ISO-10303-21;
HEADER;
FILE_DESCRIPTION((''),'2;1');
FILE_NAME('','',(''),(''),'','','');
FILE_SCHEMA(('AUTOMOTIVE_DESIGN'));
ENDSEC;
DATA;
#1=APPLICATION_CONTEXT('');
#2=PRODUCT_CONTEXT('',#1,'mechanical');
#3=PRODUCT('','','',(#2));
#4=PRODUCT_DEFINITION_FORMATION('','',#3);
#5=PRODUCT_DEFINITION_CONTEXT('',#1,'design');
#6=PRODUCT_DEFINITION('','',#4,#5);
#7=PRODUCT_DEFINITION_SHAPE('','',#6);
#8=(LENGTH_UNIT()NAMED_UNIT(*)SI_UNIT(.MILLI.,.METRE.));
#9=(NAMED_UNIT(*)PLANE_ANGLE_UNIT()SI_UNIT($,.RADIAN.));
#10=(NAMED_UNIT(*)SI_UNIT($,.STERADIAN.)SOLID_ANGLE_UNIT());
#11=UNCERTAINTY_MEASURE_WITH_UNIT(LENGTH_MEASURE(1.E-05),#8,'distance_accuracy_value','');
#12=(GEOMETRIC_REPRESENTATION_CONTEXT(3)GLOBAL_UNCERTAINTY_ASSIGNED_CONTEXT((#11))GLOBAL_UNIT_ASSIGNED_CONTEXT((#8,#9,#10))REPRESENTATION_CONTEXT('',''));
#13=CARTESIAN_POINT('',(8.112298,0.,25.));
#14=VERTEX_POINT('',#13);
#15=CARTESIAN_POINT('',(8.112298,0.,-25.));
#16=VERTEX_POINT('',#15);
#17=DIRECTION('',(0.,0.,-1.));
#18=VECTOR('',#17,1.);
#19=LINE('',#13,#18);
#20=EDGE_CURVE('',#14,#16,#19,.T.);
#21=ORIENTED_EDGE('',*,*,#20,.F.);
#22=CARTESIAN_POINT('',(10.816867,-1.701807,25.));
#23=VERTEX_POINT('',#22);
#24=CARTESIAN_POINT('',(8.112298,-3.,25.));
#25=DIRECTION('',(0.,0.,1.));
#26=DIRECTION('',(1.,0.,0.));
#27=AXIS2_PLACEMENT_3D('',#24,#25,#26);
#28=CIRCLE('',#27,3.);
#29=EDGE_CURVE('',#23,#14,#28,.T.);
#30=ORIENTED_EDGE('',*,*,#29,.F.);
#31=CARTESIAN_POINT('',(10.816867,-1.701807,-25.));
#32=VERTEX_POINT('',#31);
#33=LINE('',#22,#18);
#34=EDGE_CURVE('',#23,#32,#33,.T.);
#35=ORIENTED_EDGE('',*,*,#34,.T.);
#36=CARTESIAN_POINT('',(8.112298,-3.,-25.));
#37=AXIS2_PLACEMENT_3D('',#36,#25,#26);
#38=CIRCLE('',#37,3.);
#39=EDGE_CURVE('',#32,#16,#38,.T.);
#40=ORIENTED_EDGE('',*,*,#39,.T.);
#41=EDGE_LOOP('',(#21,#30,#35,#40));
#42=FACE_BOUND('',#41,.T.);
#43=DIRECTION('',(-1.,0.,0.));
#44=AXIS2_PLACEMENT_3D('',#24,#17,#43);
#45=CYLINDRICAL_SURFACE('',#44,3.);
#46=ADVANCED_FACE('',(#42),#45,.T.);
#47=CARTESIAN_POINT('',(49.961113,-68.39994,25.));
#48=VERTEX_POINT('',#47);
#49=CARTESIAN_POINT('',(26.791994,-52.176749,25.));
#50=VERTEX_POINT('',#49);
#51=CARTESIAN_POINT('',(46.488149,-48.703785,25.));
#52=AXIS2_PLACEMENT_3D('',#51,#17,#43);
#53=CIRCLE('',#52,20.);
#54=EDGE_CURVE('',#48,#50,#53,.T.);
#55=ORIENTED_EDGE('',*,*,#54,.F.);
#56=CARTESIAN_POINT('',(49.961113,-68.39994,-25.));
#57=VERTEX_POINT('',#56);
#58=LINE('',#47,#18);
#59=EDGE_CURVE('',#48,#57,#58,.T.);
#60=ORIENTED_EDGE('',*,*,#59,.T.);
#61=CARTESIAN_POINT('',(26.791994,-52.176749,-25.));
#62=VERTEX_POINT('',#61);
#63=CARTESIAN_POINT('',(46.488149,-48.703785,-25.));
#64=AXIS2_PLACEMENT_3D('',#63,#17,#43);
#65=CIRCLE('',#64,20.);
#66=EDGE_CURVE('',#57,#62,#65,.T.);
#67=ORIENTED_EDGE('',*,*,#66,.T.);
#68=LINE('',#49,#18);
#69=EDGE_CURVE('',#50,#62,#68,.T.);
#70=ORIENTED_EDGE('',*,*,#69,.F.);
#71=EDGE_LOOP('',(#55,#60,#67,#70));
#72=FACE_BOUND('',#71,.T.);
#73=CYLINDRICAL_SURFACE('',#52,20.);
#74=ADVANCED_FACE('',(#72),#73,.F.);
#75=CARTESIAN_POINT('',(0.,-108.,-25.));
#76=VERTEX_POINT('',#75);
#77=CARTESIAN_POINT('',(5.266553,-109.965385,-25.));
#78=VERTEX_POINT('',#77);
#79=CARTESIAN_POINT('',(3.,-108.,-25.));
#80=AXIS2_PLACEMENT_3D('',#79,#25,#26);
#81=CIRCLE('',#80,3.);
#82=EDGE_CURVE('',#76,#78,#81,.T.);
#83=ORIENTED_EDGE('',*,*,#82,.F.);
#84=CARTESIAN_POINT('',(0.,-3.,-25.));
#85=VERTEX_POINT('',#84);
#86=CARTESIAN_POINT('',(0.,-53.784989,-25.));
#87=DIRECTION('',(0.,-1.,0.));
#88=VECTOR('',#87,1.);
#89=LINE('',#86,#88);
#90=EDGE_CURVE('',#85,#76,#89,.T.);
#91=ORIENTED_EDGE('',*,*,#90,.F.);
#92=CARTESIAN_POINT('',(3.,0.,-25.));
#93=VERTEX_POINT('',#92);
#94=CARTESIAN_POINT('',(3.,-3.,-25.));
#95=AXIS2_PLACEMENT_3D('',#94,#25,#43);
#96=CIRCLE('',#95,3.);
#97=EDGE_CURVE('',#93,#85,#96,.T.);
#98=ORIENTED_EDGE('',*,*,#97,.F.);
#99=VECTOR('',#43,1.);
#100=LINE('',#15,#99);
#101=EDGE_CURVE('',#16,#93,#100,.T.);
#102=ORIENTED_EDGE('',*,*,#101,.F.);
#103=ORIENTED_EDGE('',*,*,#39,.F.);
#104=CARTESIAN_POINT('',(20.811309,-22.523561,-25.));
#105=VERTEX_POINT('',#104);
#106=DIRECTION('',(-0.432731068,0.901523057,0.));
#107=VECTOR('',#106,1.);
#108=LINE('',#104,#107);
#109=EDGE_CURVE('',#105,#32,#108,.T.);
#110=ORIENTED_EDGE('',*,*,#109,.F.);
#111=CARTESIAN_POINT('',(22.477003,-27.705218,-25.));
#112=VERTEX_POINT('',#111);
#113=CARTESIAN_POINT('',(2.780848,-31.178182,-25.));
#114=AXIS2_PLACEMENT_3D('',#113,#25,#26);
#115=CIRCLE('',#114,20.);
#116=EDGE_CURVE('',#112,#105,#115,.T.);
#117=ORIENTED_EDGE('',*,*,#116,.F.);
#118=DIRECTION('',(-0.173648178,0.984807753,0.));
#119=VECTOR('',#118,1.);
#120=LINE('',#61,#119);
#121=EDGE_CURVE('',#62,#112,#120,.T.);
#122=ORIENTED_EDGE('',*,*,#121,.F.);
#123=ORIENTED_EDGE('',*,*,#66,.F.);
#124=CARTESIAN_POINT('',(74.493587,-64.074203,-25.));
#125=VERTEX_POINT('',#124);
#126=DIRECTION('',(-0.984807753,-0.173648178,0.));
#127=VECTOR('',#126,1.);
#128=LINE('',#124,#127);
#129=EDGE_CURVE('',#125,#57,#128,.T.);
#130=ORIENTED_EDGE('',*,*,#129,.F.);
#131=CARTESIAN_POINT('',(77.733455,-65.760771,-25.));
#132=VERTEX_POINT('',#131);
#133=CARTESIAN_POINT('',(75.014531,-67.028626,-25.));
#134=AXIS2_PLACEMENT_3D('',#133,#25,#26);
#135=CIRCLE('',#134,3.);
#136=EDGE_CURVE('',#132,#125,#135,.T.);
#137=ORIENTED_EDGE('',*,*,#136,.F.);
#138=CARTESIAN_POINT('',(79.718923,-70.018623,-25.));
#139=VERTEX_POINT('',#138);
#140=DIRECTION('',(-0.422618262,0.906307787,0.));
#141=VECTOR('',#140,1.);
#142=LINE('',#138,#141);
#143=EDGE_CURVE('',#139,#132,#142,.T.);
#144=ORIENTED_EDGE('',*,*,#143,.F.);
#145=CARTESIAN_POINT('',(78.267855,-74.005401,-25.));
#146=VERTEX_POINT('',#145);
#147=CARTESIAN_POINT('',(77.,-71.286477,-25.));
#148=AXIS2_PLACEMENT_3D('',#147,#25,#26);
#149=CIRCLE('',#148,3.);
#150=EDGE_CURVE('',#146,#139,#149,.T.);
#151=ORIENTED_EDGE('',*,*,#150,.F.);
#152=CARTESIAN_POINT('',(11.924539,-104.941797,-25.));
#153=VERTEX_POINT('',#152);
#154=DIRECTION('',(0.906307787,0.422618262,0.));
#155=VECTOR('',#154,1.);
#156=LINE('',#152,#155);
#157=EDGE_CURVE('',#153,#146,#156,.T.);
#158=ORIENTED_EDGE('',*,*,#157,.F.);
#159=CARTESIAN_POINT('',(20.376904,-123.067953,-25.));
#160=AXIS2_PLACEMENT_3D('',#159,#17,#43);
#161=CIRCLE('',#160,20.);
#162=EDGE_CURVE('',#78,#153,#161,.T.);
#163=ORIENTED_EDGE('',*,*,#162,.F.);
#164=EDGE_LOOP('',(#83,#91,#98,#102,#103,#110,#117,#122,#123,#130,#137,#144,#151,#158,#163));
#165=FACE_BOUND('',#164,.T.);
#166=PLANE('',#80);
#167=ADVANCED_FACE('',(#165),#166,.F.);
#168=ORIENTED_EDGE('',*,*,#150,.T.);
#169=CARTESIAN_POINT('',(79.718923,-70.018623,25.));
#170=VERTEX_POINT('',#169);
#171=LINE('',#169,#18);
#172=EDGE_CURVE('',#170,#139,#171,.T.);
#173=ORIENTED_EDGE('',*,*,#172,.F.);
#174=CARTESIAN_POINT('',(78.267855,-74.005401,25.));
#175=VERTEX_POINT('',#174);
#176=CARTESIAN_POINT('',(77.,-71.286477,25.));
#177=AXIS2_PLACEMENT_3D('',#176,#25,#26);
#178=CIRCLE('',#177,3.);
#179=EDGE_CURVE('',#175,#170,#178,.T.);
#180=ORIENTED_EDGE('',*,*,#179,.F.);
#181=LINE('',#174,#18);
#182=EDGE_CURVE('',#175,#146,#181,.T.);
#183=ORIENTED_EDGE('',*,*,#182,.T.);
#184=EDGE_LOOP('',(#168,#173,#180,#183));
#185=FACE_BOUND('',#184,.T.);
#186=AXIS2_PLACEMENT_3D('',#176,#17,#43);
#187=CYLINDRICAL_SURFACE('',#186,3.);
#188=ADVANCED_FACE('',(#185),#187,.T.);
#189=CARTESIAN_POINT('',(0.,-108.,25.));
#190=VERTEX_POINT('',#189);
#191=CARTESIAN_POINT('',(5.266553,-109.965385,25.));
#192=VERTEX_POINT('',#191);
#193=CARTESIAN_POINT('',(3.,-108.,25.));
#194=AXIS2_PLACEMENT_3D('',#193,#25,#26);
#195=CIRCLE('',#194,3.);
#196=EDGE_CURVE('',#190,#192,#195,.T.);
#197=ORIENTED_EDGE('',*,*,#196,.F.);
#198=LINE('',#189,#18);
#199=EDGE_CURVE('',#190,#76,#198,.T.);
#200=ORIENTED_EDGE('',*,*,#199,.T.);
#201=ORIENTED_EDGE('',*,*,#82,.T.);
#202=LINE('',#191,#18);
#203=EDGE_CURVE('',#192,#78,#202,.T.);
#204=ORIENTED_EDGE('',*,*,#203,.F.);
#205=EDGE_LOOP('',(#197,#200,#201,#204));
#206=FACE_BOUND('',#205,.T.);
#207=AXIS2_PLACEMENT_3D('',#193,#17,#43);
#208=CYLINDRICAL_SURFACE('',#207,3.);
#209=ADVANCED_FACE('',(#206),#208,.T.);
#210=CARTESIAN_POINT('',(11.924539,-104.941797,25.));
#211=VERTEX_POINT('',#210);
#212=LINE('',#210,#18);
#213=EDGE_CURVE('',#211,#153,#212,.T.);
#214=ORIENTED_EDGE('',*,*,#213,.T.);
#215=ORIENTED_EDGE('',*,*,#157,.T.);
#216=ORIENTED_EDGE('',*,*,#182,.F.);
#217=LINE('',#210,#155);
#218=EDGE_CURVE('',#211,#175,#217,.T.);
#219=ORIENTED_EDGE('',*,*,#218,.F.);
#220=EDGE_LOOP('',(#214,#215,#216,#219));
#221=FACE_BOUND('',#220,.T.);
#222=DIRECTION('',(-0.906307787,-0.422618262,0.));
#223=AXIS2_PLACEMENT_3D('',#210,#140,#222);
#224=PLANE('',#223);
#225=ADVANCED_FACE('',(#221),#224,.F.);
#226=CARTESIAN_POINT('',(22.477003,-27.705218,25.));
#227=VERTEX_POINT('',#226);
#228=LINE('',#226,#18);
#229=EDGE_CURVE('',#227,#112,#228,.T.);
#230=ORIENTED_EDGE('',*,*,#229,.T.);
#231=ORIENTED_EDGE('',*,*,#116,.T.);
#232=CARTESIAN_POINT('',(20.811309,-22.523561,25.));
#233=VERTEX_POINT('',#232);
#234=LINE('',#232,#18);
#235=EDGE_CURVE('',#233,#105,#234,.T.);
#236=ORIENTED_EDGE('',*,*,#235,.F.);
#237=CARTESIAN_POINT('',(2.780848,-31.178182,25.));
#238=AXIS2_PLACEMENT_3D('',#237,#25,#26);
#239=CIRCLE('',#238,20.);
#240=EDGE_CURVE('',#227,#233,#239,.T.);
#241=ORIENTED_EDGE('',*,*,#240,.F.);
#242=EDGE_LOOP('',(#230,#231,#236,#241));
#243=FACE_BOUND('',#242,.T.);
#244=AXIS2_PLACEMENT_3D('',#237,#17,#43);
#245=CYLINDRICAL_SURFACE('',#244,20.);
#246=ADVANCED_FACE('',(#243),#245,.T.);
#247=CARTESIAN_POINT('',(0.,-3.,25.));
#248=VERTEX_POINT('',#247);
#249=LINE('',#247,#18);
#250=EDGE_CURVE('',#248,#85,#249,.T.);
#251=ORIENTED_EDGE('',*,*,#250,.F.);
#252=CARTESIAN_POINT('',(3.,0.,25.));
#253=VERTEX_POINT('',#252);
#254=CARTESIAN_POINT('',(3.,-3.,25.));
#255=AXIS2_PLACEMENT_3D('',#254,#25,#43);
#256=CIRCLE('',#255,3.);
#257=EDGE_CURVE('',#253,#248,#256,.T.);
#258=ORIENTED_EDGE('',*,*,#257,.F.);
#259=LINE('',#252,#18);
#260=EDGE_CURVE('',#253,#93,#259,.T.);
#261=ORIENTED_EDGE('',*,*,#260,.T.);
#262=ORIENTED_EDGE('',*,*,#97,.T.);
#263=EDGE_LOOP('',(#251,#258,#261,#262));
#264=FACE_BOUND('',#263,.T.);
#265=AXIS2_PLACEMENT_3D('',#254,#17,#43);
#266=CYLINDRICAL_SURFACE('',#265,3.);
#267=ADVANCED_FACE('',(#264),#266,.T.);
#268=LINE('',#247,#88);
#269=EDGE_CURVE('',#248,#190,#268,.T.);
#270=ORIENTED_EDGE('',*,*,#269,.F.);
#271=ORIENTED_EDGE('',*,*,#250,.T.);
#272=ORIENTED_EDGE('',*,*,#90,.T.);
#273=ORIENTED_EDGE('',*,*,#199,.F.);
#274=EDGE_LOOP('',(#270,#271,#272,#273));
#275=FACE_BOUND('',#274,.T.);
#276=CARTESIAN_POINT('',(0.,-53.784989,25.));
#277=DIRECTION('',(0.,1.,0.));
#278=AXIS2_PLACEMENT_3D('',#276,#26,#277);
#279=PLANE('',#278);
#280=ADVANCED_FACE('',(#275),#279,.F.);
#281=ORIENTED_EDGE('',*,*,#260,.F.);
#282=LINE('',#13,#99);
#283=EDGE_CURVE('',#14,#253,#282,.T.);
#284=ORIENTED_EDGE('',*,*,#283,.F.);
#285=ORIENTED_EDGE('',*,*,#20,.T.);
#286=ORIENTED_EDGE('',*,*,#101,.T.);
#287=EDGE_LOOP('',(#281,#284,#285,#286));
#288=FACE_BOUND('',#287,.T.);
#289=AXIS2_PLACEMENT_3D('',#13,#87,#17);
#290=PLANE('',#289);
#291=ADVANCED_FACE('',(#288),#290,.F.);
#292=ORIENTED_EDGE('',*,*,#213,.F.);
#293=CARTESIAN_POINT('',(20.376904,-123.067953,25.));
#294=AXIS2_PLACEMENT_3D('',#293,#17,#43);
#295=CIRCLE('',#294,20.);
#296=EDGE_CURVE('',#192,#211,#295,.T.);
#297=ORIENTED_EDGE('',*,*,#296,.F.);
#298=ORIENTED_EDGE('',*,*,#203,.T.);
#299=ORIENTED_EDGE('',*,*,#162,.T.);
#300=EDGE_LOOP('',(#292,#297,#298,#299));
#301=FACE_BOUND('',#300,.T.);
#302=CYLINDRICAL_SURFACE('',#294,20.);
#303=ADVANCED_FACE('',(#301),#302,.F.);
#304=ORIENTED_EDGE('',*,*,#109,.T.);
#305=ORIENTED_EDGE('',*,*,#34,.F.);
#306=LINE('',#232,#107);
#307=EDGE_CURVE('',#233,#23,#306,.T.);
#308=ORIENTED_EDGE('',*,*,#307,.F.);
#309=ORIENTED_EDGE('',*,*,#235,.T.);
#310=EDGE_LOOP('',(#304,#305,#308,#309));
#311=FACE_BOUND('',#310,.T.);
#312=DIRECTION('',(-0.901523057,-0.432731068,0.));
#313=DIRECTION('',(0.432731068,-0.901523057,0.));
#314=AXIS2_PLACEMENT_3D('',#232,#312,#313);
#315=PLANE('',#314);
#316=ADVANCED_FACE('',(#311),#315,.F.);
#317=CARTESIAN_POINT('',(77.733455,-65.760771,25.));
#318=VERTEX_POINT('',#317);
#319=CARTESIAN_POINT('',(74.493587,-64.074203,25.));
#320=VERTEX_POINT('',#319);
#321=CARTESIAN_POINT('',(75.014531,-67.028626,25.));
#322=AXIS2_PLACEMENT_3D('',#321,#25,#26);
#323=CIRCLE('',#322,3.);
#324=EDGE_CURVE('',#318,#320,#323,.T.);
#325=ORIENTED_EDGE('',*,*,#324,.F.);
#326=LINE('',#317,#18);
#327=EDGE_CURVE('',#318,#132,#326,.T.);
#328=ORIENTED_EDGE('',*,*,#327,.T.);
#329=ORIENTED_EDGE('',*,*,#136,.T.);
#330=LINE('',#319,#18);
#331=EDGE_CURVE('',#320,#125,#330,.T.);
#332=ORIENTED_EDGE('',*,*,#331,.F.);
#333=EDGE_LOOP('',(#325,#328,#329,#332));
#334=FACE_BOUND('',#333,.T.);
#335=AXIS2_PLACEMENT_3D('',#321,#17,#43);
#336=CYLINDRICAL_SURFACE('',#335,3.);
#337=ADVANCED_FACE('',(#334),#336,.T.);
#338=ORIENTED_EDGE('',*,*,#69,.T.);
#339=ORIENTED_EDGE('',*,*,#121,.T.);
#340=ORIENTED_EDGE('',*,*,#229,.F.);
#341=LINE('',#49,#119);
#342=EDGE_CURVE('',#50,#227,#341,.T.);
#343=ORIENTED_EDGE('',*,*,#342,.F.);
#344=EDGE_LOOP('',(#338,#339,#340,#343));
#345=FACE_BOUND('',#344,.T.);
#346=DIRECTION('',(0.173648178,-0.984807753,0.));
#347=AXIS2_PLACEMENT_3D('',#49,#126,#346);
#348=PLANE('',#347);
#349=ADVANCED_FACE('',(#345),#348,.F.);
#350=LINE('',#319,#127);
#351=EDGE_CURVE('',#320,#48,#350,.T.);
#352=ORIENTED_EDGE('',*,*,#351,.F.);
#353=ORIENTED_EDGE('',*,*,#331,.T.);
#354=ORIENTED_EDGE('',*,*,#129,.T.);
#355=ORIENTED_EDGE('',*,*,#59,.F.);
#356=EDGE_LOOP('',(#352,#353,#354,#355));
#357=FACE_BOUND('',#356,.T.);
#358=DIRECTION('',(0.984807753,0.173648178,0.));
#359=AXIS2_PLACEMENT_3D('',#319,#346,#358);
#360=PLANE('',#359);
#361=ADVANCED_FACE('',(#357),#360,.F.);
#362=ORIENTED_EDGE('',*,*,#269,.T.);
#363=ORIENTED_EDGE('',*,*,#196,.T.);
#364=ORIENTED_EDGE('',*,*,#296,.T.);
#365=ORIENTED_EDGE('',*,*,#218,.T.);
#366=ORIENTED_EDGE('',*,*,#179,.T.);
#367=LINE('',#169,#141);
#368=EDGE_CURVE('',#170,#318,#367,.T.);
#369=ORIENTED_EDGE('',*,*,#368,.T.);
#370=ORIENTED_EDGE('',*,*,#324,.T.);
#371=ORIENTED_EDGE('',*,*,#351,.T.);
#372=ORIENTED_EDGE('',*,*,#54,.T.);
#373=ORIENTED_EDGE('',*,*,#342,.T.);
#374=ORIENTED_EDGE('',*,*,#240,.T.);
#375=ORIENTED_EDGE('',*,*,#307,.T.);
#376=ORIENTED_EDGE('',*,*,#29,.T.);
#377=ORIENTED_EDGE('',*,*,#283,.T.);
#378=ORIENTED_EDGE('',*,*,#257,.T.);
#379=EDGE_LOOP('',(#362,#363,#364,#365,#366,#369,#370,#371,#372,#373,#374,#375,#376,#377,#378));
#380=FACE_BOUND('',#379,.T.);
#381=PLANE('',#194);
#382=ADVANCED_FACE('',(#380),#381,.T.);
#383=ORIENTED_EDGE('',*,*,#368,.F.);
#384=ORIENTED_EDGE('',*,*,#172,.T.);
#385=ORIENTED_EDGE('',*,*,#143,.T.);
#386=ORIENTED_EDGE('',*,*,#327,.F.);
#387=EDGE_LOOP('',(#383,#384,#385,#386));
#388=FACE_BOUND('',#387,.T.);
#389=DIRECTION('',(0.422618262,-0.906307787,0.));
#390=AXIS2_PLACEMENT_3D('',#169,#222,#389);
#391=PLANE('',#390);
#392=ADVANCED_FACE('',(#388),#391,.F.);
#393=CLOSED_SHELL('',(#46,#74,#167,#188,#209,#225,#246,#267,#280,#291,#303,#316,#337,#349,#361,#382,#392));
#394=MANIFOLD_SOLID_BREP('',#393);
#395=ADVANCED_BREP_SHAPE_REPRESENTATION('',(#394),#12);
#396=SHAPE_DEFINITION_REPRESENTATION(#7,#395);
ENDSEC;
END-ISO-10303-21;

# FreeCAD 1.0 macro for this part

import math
import FreeCAD as App
import Part
import Sketcher
from FreeCAD import Vector
Q = App.Units.Quantity

doc = App.newDocument("Part")
body = doc.addObject("PartDesign::Body", "Body")

# Sketch on XY plane
sketch1 = body.newObject("Sketcher::SketchObject", "Sketch")
sketch1.AttachmentSupport = (doc.getObject("XY_Plane"), [""])
sketch1.MapMode = "FlatFace"
sketch1.addGeometry([
    Part.LineSegment(Vector(0, -3, 0), Vector(0, -108, 0)),  # 0
    Part.ArcOfCircle(Part.Circle(Vector(3, -108, 0), Vector(0, 0, 1), 3), math.radians(180), math.radians(319.070615)),  # 1
    Part.ArcOfCircle(Part.Circle(Vector(20.376904, -123.067953, 0), Vector(0, 0, 1), 20), math.radians(115), math.radians(139.070615)),  # 2
    Part.LineSegment(Vector(11.924539, -104.941797, 0), Vector(78.267855, -74.005401, 0)),  # 3
    Part.ArcOfCircle(Part.Circle(Vector(77, -71.286477, 0), Vector(0, 0, 1), 3), math.radians(-65), math.radians(25)),  # 4
    Part.LineSegment(Vector(79.718923, -70.018623, 0), Vector(77.733455, -65.760771, 0)),  # 5
    Part.ArcOfCircle(Part.Circle(Vector(75.014531, -67.028626, 0), Vector(0, 0, 1), 3), math.radians(25), math.radians(100)),  # 6
    Part.LineSegment(Vector(74.493587, -64.074203, 0), Vector(49.961113, -68.39994, 0)),  # 7
    Part.ArcOfCircle(Part.Circle(Vector(46.488149, -48.703785, 0), Vector(0, 0, 1), 20), math.radians(-170), math.radians(-80)),  # 8
    Part.LineSegment(Vector(26.791994, -52.176749, 0), Vector(22.477003, -27.705218, 0)),  # 9
    Part.ArcOfCircle(Part.Circle(Vector(2.780848, -31.178182, 0), Vector(0, 0, 1), 20), math.radians(10), math.radians(25.641006)),  # 10
    Part.LineSegment(Vector(20.811309, -22.523561, 0), Vector(10.816867, -1.701807, 0)),  # 11
    Part.ArcOfCircle(Part.Circle(Vector(8.112298, -3, 0), Vector(0, 0, 1), 3), math.radians(25.641006), math.radians(90)),  # 12
    Part.LineSegment(Vector(8.112298, 0, 0), Vector(3, 0, 0)),  # 13
    Part.ArcOfCircle(Part.Circle(Vector(3, -3, 0), Vector(0, 0, 1), 3), math.radians(90), math.radians(180)),  # 14
], False)
sketch1.addConstraint([
    Sketcher.Constraint("Tangent", 0, 2, 1, 1),
    Sketcher.Constraint("Tangent", 1, 2, 2, 2),
    Sketcher.Constraint("Tangent", 2, 1, 3, 1),
    Sketcher.Constraint("Tangent", 3, 2, 4, 1),
    Sketcher.Constraint("Tangent", 4, 2, 5, 1),
    Sketcher.Constraint("Tangent", 5, 2, 6, 1),
    Sketcher.Constraint("Tangent", 6, 2, 7, 1),
    Sketcher.Constraint("Tangent", 7, 2, 8, 2),
    Sketcher.Constraint("Tangent", 8, 1, 9, 1),
    Sketcher.Constraint("Tangent", 9, 2, 10, 1),
    Sketcher.Constraint("Tangent", 10, 2, 11, 1),
    Sketcher.Constraint("Tangent", 11, 2, 12, 1),
    Sketcher.Constraint("Tangent", 12, 2, 13, 1),
    Sketcher.Constraint("Tangent", 13, 2, 14, 1),
    Sketcher.Constraint("Tangent", 14, 2, 0, 1),
    Sketcher.Constraint("Vertical", 0),
    Sketcher.Constraint("Horizontal", 13),
    Sketcher.Constraint("Equal", 1, 4),
    Sketcher.Constraint("Equal", 4, 6),
    Sketcher.Constraint("Equal", 2, 8),
    Sketcher.Constraint("Equal", 8, 10),
    Sketcher.Constraint("Equal", 6, 12),
    Sketcher.Constraint("Equal", 12, 14),
    Sketcher.Constraint("PointOnObject", 0, 2, -2),
    Sketcher.Constraint("PointOnObject", 12, 2, -1),
    Sketcher.Constraint("Perpendicular", 3, 5),
    Sketcher.Constraint("Perpendicular", 7, 9),
    Sketcher.Constraint("Radius", 1, 3.0),
    Sketcher.Constraint("Radius", 2, 20.0),
    Sketcher.Constraint("DistanceY", 0, 2, 0, 1, 105.0),
    Sketcher.Constraint("Angle", 3, Q("25 deg")),
    Sketcher.Constraint("Angle", 7, Q("-170 deg")),
    Sketcher.Constraint("DistanceX", -1, 1, 4, 3, 77.0),
    Sketcher.Constraint("DistanceX", 13, 2, 13, 1, 5.112298),
    Sketcher.Constraint("DistanceY", 3, 2, -1, 1, 74.005401),
    Sketcher.Constraint("DistanceX", 10, 3, 8, 3, 43.707301),
    Sketcher.Constraint("DistanceY", 1, 2, 8, 3, 61.2616),
    Sketcher.Constraint("DistanceX", 5, 2, 3, 2, 0.5344),
])
pad1 = body.newObject("PartDesign::Pad", "Pad")
pad1.Profile = sketch1
pad1.Length = 50
pad1.Midplane = True

doc.recompute()
